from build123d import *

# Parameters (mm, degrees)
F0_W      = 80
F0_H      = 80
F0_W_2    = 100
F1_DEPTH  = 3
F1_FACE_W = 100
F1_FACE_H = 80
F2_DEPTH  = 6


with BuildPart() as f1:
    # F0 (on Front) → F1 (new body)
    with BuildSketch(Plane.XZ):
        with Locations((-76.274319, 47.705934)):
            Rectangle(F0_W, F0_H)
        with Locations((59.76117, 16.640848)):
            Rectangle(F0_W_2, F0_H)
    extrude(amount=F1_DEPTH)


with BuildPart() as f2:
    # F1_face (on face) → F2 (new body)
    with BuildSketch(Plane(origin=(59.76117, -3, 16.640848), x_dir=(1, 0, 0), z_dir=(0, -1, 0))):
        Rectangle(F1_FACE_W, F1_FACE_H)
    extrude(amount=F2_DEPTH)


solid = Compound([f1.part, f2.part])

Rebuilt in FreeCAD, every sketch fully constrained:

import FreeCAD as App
import Part
import Sketcher

V = App.Vector

doc = App.newDocument("Part")
params = doc.addObject("Spreadsheet::Sheet", "Params")
for row, (alias, value) in enumerate([
    ("sketch1_width", "80 mm"),
    ("sketch1_width2", "100 mm"),
    ("pad1_length", "3 mm"),
    ("sketch2_width", "100 mm"),
    ("sketch2_height", "80 mm"),
    ("pad2_length", "6 mm"),
], start=1):
    params.set(f"A{row}", alias)
    params.set(f"B{row}", "=" + value)
    params.setAlias(f"B{row}", alias)

body = doc.addObject("PartDesign::Body", "Body")
body.AllowCompound = True

sketch1 = body.newObject("Sketcher::SketchObject", "Sketch")
sketch1.AttachmentSupport = (doc.getObject("XZ_Plane"), [""])
sketch1.MapMode = "FlatFace"
sketch1.addGeometry([
    Part.LineSegment(V(-116, 88, 0), V(-116, 8, 0)),
    Part.LineSegment(V(-116, 8, 0), V(-36, 8, 0)),
    Part.LineSegment(V(-36, 8, 0), V(-36, 88, 0)),
    Part.LineSegment(V(-36, 88, 0), V(-116, 88, 0)),
    Part.LineSegment(V(10, 57, 0), V(10, -23, 0)),
    Part.LineSegment(V(10, -23, 0), V(110, -23, 0)),
    Part.LineSegment(V(110, -23, 0), V(110, 57, 0)),
    Part.LineSegment(V(110, 57, 0), V(10, 57, 0)),
], False)
sketch1.addConstraint([
    Sketcher.Constraint("Coincident", 0, 2, 1, 1),
    Sketcher.Constraint("Coincident", 1, 2, 2, 1),
    Sketcher.Constraint("Coincident", 2, 2, 3, 1),
    Sketcher.Constraint("Coincident", 3, 2, 0, 1),
    Sketcher.Constraint("Coincident", 4, 2, 5, 1),
    Sketcher.Constraint("Coincident", 5, 2, 6, 1),
    Sketcher.Constraint("Coincident", 6, 2, 7, 1),
    Sketcher.Constraint("Coincident", 7, 2, 4, 1),
    Sketcher.Constraint("Vertical", 0),
    Sketcher.Constraint("Horizontal", 1),
    Sketcher.Constraint("Vertical", 2),
    Sketcher.Constraint("Horizontal", 3),
    Sketcher.Constraint("Vertical", 4),
    Sketcher.Constraint("Horizontal", 5),
    Sketcher.Constraint("Vertical", 6),
    Sketcher.Constraint("Horizontal", 7),
    Sketcher.Constraint("Equal", 3, 0),
    Sketcher.Constraint("Equal", 2, 4),
    Sketcher.Constraint("DistanceX", 1, 1, 1, 2, 80.0),
    Sketcher.Constraint("DistanceX", 5, 1, 5, 2, 100.0),
    Sketcher.Constraint("DistanceX", 0, 2, -1, 1, 116.274319),
    Sketcher.Constraint("DistanceX", -1, 1, 4, 2, 9.76117),
    Sketcher.Constraint("DistanceY", -1, 1, 0, 2, 7.705934),
    Sketcher.Constraint("DistanceY", 4, 2, -1, 1, 23.359152),
])
sketch1.setExpression("Constraints[18]", "Params.sketch1_width")
sketch1.setExpression("Constraints[19]", "Params.sketch1_width2")
pad1 = body.newObject("PartDesign::Pad", "Pad")
pad1.Profile = sketch1
pad1.setExpression("Length", "Params.pad1_length")
body2 = doc.addObject("PartDesign::Body", "Body001")

sketch2 = body2.newObject("Sketcher::SketchObject", "Sketch001")
sketch2.AttachmentSupport = (doc.getObject("XZ_Plane001"), [""])
sketch2.MapMode = "FlatFace"
sketch2.AttachmentOffset = App.Placement(V(0, 0, 3), App.Rotation())
sketch2.addGeometry([
    Part.LineSegment(V(10, 57, 0), V(10, -23, 0)),
    Part.LineSegment(V(10, -23, 0), V(110, -23, 0)),
    Part.LineSegment(V(110, -23, 0), V(110, 57, 0)),
    Part.LineSegment(V(110, 57, 0), V(10, 57, 0)),
], False)
sketch2.addConstraint([
    Sketcher.Constraint("Coincident", 0, 2, 1, 1),
    Sketcher.Constraint("Coincident", 1, 2, 2, 1),
    Sketcher.Constraint("Coincident", 2, 2, 3, 1),
    Sketcher.Constraint("Coincident", 3, 2, 0, 1),
    Sketcher.Constraint("Vertical", 0),
    Sketcher.Constraint("Horizontal", 1),
    Sketcher.Constraint("Vertical", 2),
    Sketcher.Constraint("Horizontal", 3),
    Sketcher.Constraint("DistanceX", 1, 1, 1, 2, 100.0),
    Sketcher.Constraint("DistanceY", 0, 2, 0, 1, 80.0),
    Sketcher.Constraint("DistanceX", -1, 1, 0, 2, 9.76117),
    Sketcher.Constraint("DistanceY", 0, 2, -1, 1, 23.359152),
])
sketch2.setExpression("Constraints[8]", "Params.sketch2_width")
sketch2.setExpression("Constraints[9]", "Params.sketch2_height")
pad2 = body2.newObject("PartDesign::Pad", "Pad001")
pad2.Profile = sketch2
pad2.setExpression("Length", "Params.pad2_length")

doc.recompute()
